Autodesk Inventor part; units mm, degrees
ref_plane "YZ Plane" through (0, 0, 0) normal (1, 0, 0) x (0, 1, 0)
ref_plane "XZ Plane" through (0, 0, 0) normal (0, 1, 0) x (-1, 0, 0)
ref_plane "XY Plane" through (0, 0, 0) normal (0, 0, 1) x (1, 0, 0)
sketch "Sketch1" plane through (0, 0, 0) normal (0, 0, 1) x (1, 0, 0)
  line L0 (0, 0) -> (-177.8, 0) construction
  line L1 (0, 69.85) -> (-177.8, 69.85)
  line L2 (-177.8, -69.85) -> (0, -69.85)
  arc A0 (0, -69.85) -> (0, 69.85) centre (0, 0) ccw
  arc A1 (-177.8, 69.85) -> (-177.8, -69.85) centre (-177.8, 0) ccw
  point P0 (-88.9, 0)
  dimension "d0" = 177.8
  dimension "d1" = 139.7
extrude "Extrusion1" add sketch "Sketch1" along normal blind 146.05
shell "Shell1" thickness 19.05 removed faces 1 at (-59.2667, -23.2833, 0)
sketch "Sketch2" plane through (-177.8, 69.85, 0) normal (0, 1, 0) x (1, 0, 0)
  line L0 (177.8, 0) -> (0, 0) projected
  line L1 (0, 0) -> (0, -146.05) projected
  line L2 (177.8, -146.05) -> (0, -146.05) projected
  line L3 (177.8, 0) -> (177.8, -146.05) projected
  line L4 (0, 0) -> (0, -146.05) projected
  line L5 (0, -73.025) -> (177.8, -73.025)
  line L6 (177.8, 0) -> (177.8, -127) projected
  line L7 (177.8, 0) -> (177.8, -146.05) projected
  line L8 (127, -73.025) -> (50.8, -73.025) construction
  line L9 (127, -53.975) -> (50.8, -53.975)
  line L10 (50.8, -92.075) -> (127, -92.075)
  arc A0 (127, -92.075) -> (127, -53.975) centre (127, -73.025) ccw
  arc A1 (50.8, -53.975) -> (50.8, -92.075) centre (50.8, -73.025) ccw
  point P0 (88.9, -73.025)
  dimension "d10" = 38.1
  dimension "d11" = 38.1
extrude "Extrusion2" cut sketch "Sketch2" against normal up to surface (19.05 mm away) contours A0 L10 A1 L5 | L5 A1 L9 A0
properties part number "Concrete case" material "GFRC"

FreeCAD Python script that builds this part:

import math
import FreeCAD as App
import Part
import Sketcher

V = App.Vector
Q = App.Units.Quantity


def faces_at(feature, points):
    """Names of the faces that lie closest to the given points."""
    faces = feature.Shape.Faces
    near = lambda p: min(range(len(faces)), key=lambda i: faces[i].distToShape(Part.Vertex(*p))[0])
    return sorted({f"Face{near(p) + 1}" for p in points})

doc = App.newDocument("Part")
body = doc.addObject("PartDesign::Body", "Body")

# Sketch on XY plane
sketch1 = body.newObject("Sketcher::SketchObject", "Sketch")
sketch1.AttachmentSupport = (doc.getObject("XY_Plane"), [""])
sketch1.MapMode = "FlatFace"
sketch1.addGeometry([
    Part.ArcOfCircle(Part.Circle(V(0, 0, 0), V(0, 0, 1), 70), math.radians(-90), math.radians(90)),
    Part.LineSegment(V(0, 70, 0), V(-178, 70, 0)),
    Part.ArcOfCircle(Part.Circle(V(-178, 0, 0), V(0, 0, 1), 70), math.radians(90), math.radians(270)),
    Part.LineSegment(V(-178, -70, 0), V(0, -70, 0)),
], False)
sketch1.addConstraint([
    Sketcher.Constraint("Tangent", 0, 2, 1, 1),
    Sketcher.Constraint("Tangent", 1, 2, 2, 1),
    Sketcher.Constraint("Tangent", 2, 2, 3, 1),
    Sketcher.Constraint("Tangent", 3, 2, 0, 1),
    Sketcher.Constraint("Horizontal", 1),
    Sketcher.Constraint("Horizontal", 3),
    Sketcher.Constraint("Coincident", 0, 3, -1, 1),
    Sketcher.Constraint("DistanceX", 1, 2, 1, 1, Q("7 in")),
    Sketcher.Constraint("Radius", 0, Q("2.75 in")),
])
pad1 = body.newObject("PartDesign::Pad", "Pad")
pad1.Profile = sketch1
pad1.Length = Q("5.75 in")
doc.recompute()

thickness = body.newObject("PartDesign::Thickness", "Thickness")
thickness.Base = (pad1, faces_at(pad1, [(-59.267, -23.283, 0)]))
thickness.Value = Q("0.75 in")
thickness.Reversed = True
thickness.Join = "Intersection"

# Sketch on XZ plane
sketch2 = body.newObject("Sketcher::SketchObject", "Sketch001")
sketch2.AttachmentSupport = (doc.getObject("XZ_Plane"), [""])
sketch2.MapMode = "FlatFace"
sketch2.AttachmentOffset = App.Placement(V(0, 0, -2.75 * 25.4), App.Rotation())
sketch2.addGeometry([
    Part.ArcOfCircle(Part.Circle(V(-51, 73, 0), V(0, 0, 1), 19), math.radians(-90), math.radians(90)),
    Part.LineSegment(V(-51, 54, 0), V(-127, 54, 0)),
    Part.ArcOfCircle(Part.Circle(V(-127, 73, 0), V(0, 0, 1), 19), math.radians(90), math.radians(270)),
    Part.LineSegment(V(-127, 92, 0), V(-51, 92, 0)),
], False)
sketch2.addConstraint([
    Sketcher.Constraint("Tangent", 0, 1, 1, 1),
    Sketcher.Constraint("Tangent", 1, 2, 2, 2),
    Sketcher.Constraint("Tangent", 2, 1, 3, 1),
    Sketcher.Constraint("Tangent", 3, 2, 0, 2),
    Sketcher.Constraint("Horizontal", 1),
    Sketcher.Constraint("Horizontal", 3),
    Sketcher.Constraint("Radius", 0, Q("0.75 in")),
    Sketcher.Constraint("DistanceX", 1, 2, 1, 1, Q("3 in")),
    Sketcher.Constraint("DistanceX", 0, 3, -1, 1, Q("2 in")),
    Sketcher.Constraint("DistanceY", -1, 1, 0, 3, Q("2.875 in")),
])
pocket1 = body.newObject("PartDesign::Pocket", "Pocket")
pocket1.Profile = sketch2
pocket1.Length = Q("0.75 in")
pocket1.Reversed = True

doc.recompute()
